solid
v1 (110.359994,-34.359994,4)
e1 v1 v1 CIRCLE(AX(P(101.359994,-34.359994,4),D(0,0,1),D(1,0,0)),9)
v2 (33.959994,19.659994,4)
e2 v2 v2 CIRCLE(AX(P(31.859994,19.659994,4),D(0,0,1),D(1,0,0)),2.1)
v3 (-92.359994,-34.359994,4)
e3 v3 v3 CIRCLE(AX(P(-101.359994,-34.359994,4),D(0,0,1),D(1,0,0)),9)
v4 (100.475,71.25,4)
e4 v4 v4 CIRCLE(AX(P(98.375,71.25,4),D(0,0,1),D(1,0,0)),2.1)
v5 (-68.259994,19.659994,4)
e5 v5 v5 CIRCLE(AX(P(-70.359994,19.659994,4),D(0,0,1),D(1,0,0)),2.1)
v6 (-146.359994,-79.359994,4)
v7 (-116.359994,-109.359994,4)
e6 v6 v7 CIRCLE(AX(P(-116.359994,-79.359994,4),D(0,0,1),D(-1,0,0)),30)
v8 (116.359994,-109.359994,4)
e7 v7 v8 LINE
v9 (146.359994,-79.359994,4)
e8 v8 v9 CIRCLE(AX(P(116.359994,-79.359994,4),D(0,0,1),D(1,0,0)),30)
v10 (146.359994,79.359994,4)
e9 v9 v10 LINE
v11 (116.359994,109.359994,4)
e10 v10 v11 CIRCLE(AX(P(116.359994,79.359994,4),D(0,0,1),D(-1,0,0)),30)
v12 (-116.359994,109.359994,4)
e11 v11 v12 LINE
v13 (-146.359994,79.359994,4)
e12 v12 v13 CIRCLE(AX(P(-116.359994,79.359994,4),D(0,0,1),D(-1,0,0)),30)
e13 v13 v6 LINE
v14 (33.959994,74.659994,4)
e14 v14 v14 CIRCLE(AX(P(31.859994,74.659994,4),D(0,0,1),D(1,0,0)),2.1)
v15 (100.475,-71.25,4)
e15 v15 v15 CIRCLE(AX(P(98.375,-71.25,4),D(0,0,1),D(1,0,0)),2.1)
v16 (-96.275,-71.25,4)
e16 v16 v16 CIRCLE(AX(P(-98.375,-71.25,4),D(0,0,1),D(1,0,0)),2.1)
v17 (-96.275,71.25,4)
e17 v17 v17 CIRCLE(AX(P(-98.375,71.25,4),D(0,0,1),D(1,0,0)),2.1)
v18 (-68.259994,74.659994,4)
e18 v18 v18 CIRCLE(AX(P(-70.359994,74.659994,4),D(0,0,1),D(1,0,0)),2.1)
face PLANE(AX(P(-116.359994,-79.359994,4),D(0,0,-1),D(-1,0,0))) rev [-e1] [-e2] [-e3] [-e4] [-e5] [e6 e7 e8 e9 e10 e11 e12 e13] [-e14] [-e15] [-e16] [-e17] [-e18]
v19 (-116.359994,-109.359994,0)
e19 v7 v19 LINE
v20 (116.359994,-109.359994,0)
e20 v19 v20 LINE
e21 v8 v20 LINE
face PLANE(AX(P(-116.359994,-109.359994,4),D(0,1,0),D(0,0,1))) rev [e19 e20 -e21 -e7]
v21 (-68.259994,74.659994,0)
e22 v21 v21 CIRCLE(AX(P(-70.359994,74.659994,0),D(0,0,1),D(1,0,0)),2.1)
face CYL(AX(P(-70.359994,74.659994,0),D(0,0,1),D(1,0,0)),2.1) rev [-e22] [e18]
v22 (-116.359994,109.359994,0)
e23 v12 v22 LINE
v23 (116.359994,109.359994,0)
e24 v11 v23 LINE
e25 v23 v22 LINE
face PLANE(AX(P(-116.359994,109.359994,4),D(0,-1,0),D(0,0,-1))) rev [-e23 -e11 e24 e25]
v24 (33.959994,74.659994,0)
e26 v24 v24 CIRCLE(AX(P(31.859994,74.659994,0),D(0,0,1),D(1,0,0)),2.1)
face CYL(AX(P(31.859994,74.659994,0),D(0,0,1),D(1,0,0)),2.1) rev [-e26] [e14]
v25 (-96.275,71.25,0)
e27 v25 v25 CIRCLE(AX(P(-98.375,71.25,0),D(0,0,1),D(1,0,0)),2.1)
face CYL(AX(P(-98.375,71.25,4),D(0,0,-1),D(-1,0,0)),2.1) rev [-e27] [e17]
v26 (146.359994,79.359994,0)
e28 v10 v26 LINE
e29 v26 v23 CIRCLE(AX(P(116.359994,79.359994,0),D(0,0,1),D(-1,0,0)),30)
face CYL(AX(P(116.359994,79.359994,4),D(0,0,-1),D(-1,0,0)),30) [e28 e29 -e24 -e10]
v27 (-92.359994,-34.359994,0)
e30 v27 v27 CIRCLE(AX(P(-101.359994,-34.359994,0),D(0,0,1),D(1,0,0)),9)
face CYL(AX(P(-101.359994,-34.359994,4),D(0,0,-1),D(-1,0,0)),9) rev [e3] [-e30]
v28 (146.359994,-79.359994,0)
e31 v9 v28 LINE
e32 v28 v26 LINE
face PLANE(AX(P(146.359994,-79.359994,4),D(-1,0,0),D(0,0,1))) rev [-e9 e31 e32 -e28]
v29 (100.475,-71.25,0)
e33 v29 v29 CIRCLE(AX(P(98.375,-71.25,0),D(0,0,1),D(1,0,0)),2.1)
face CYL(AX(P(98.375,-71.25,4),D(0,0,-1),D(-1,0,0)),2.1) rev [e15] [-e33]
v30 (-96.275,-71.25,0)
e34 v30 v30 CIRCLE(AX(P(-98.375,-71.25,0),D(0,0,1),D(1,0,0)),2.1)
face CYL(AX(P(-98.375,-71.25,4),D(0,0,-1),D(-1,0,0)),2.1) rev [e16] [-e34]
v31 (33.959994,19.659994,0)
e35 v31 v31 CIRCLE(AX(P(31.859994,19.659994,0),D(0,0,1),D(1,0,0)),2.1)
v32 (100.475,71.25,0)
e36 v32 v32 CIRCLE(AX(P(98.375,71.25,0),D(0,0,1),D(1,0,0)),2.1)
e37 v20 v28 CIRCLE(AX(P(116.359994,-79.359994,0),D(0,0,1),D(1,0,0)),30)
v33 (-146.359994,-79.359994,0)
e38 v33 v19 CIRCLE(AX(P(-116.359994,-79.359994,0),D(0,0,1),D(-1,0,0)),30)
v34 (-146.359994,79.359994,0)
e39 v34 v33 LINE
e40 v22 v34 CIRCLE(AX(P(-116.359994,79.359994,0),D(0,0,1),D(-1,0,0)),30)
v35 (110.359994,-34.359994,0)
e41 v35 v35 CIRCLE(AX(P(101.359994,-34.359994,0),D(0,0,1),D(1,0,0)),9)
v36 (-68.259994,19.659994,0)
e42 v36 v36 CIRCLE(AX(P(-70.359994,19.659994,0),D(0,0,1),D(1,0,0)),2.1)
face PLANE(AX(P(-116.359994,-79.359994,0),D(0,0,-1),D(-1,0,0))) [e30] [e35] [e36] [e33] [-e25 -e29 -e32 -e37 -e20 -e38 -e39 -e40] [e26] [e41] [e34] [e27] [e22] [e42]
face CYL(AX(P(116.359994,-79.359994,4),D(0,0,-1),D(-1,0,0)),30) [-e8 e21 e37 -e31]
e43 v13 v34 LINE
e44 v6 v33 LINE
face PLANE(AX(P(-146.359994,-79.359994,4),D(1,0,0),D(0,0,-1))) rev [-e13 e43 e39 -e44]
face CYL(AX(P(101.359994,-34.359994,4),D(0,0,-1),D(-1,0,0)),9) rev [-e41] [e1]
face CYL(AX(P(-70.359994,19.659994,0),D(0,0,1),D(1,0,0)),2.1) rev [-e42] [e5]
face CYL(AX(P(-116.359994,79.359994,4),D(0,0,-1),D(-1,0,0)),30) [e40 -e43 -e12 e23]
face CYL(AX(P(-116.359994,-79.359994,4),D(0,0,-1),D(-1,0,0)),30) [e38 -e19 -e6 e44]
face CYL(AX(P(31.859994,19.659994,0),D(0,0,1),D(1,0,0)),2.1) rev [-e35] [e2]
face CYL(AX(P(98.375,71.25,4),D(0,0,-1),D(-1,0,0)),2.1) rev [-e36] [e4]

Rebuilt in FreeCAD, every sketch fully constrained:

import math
import FreeCAD as App
import Part
import Sketcher
from FreeCAD import Vector

doc = App.newDocument("Part")
params = doc.addObject("Spreadsheet::Sheet", "Params")
for row, (alias, value) in enumerate([
    ("sketch1_diameter", "18 mm"),
    ("sketch1_radius", "30 mm"),
    ("sketch1_diameter2", "4.2 mm"),
    ("pad1_length", "4 mm"),
    ("sketch2_diameter", "4.2 mm"),
], start=1):
    params.set(f"A{row}", alias)
    params.set(f"B{row}", "=" + value)
    params.setAlias(f"B{row}", alias)

body = doc.addObject("PartDesign::Body", "Body")

# Sketch on XY plane
sketch1 = doc.addObject("Sketcher::SketchObject", "Sketch")
body.addObject(sketch1)
sketch1.AttachmentSupport = (doc.XY_Plane, [""])
sketch1.MapMode = "FlatFace"
sketch1.addGeometry(Part.LineSegment(Vector(-116.4, -109.4, 0), Vector(116.4, -109.4, 0)), False)
sketch1.addGeometry(Part.ArcOfCircle(Part.Circle(Vector(116.4, -79.4, 0), Vector(0, 0, 1), 30), math.radians(-90), math.radians(0)), False)
sketch1.addGeometry(Part.LineSegment(Vector(146.4, -79.4, 0), Vector(146.4, 79.4, 0)), False)
sketch1.addGeometry(Part.ArcOfCircle(Part.Circle(Vector(116.4, 79.4, 0), Vector(0, 0, 1), 30), math.radians(0), math.radians(90)), False)
sketch1.addGeometry(Part.LineSegment(Vector(116.4, 109.4, 0), Vector(-116.4, 109.4, 0)), False)
sketch1.addGeometry(Part.ArcOfCircle(Part.Circle(Vector(-116.4, 79.4, 0), Vector(0, 0, 1), 30), math.radians(90), math.radians(180)), False)
sketch1.addGeometry(Part.LineSegment(Vector(-146.4, 79.4, 0), Vector(-146.4, -79.4, 0)), False)
sketch1.addGeometry(Part.ArcOfCircle(Part.Circle(Vector(-116.4, -79.4, 0), Vector(0, 0, 1), 30), math.radians(180), math.radians(270)), False)
sketch1.addGeometry(Part.Circle(Vector(-98.4, -71.2, 0), Vector(0, 0, 1), 2.1), False)
sketch1.addGeometry(Part.Circle(Vector(-101.4, -34.4, 0), Vector(0, 0, 1), 9), False)
sketch1.addGeometry(Part.Circle(Vector(98.4, -71.2, 0), Vector(0, 0, 1), 2.1), False)
sketch1.addGeometry(Part.Circle(Vector(101.4, -34.4, 0), Vector(0, 0, 1), 9), False)
sketch1.addGeometry(Part.Circle(Vector(-98.4, 71.2, 0), Vector(0, 0, 1), 2.1), False)
sketch1.addGeometry(Part.Circle(Vector(98.4, 71.2, 0), Vector(0, 0, 1), 2.1), False)
sketch1.addConstraint(Sketcher.Constraint("Tangent", 0, 2, 1, 1))
sketch1.addConstraint(Sketcher.Constraint("Tangent", 1, 2, 2, 1))
sketch1.addConstraint(Sketcher.Constraint("Tangent", 2, 2, 3, 1))
sketch1.addConstraint(Sketcher.Constraint("Tangent", 3, 2, 4, 1))
sketch1.addConstraint(Sketcher.Constraint("Tangent", 4, 2, 5, 1))
sketch1.addConstraint(Sketcher.Constraint("Tangent", 5, 2, 6, 1))
sketch1.addConstraint(Sketcher.Constraint("Tangent", 6, 2, 7, 1))
sketch1.addConstraint(Sketcher.Constraint("Tangent", 7, 2, 0, 1))
sketch1.addConstraint(Sketcher.Constraint("Horizontal", 0))
sketch1.addConstraint(Sketcher.Constraint("Vertical", 2))
sketch1.addConstraint(Sketcher.Constraint("Horizontal", 4))
sketch1.addConstraint(Sketcher.Constraint("Vertical", 6))
sketch1.addConstraint(Sketcher.Constraint("Equal", 1, 3))
sketch1.addConstraint(Sketcher.Constraint("Equal", 3, 5))
sketch1.addConstraint(Sketcher.Constraint("Equal", 5, 7))
sketch1.addConstraint(Sketcher.Constraint("Equal", 8, 10))
sketch1.addConstraint(Sketcher.Constraint("Equal", 9, 11))
sketch1.addConstraint(Sketcher.Constraint("Equal", 10, 12))
sketch1.addConstraint(Sketcher.Constraint("Equal", 12, 13))
sketch1.addConstraint(Sketcher.Constraint("Symmetric", 1, 3, 5, 3, -1, 1))
sketch1.addConstraint(Sketcher.Constraint("Symmetric", 10, 3, 12, 3, -1, 1))
sketch1.addConstraint(Sketcher.Constraint("Symmetric", 8, 3, 13, 3, -1, 1))
sketch1.addConstraint(Sketcher.Constraint("Symmetric", 8, 3, 10, 3, -2))
sketch1.addConstraint(Sketcher.Constraint("Symmetric", 9, 3, 11, 3, -2))
sketch1.addConstraint(Sketcher.Constraint("Diameter", 9, 18.0))
sketch1.addConstraint(Sketcher.Constraint("Radius", 1, 30.0))
sketch1.addConstraint(Sketcher.Constraint("Diameter", 8, 4.2))
sketch1.addConstraint(Sketcher.Constraint("DistanceX", 7, 3, 9, 3, 15.0))
sketch1.addConstraint(Sketcher.Constraint("DistanceY", 7, 3, 9, 3, 45.0))
sketch1.addConstraint(Sketcher.Constraint("DistanceY", 8, 3, 12, 3, 142.5))
sketch1.addConstraint(Sketcher.Constraint("DistanceX", 8, 3, 10, 3, 196.75))
sketch1.addConstraint(Sketcher.Constraint("DistanceX", 0, 1, 0, 2, 232.719988))
sketch1.addConstraint(Sketcher.Constraint("DistanceY", 2, 1, 2, 2, 158.719988))
sketch1.setExpression("Constraints[24]", "Params.sketch1_diameter")
sketch1.setExpression("Constraints[25]", "Params.sketch1_radius")
sketch1.setExpression("Constraints[26]", "Params.sketch1_diameter2")
pad1 = doc.addObject("PartDesign::Pad", "Pad")
body.addObject(pad1)
pad1.Profile = sketch1
pad1.setExpression("Length", "Params.pad1_length")

# Sketch on XY plane
sketch2 = doc.addObject("Sketcher::SketchObject", "Sketch001")
body.addObject(sketch2)
sketch2.AttachmentSupport = (doc.XY_Plane, [""])
sketch2.MapMode = "FlatFace"
sketch2.AttachmentOffset = App.Placement(Vector(0, 0, 4), App.Rotation())
sketch2.addGeometry(Part.Circle(Vector(-70.4, 74.7, 0), Vector(0, 0, 1), 2.1), False)
sketch2.addGeometry(Part.Circle(Vector(-70.4, 19.7, 0), Vector(0, 0, 1), 2.1), False)
sketch2.addGeometry(Part.Circle(Vector(31.9, 74.7, 0), Vector(0, 0, 1), 2.1), False)
sketch2.addGeometry(Part.Circle(Vector(31.9, 19.7, 0), Vector(0, 0, 1), 2.1), False)
sketch2.addConstraint(Sketcher.Constraint("Equal", 0, 1))
sketch2.addConstraint(Sketcher.Constraint("Equal", 1, 2))
sketch2.addConstraint(Sketcher.Constraint("Equal", 2, 3))
sketch2.addConstraint(Sketcher.Constraint("Horizontal", 0, 3, 2, 3))
sketch2.addConstraint(Sketcher.Constraint("Horizontal", 1, 3, 3, 3))
sketch2.addConstraint(Sketcher.Constraint("Vertical", 0, 3, 1, 3))
sketch2.addConstraint(Sketcher.Constraint("Vertical", 2, 3, 3, 3))
sketch2.addConstraint(Sketcher.Constraint("Diameter", 0, 4.2))
sketch2.addConstraint(Sketcher.Constraint("DistanceY", 1, 3, 0, 3, 55.0))
sketch2.addConstraint(Sketcher.Constraint("DistanceX", 0, 3, -1, 1, 70.359994))
sketch2.addConstraint(Sketcher.Constraint("DistanceY", -1, 1, 0, 3, 74.659994))
sketch2.addConstraint(Sketcher.Constraint("DistanceX", -1, 1, 2, 3, 31.859994))
sketch2.setExpression("Constraints[7]", "Params.sketch2_diameter")
pocket1 = doc.addObject("PartDesign::Pocket", "Pocket")
body.addObject(pocket1)
pocket1.Profile = sketch2
pocket1.Type = "ThroughAll"

doc.recompute()
